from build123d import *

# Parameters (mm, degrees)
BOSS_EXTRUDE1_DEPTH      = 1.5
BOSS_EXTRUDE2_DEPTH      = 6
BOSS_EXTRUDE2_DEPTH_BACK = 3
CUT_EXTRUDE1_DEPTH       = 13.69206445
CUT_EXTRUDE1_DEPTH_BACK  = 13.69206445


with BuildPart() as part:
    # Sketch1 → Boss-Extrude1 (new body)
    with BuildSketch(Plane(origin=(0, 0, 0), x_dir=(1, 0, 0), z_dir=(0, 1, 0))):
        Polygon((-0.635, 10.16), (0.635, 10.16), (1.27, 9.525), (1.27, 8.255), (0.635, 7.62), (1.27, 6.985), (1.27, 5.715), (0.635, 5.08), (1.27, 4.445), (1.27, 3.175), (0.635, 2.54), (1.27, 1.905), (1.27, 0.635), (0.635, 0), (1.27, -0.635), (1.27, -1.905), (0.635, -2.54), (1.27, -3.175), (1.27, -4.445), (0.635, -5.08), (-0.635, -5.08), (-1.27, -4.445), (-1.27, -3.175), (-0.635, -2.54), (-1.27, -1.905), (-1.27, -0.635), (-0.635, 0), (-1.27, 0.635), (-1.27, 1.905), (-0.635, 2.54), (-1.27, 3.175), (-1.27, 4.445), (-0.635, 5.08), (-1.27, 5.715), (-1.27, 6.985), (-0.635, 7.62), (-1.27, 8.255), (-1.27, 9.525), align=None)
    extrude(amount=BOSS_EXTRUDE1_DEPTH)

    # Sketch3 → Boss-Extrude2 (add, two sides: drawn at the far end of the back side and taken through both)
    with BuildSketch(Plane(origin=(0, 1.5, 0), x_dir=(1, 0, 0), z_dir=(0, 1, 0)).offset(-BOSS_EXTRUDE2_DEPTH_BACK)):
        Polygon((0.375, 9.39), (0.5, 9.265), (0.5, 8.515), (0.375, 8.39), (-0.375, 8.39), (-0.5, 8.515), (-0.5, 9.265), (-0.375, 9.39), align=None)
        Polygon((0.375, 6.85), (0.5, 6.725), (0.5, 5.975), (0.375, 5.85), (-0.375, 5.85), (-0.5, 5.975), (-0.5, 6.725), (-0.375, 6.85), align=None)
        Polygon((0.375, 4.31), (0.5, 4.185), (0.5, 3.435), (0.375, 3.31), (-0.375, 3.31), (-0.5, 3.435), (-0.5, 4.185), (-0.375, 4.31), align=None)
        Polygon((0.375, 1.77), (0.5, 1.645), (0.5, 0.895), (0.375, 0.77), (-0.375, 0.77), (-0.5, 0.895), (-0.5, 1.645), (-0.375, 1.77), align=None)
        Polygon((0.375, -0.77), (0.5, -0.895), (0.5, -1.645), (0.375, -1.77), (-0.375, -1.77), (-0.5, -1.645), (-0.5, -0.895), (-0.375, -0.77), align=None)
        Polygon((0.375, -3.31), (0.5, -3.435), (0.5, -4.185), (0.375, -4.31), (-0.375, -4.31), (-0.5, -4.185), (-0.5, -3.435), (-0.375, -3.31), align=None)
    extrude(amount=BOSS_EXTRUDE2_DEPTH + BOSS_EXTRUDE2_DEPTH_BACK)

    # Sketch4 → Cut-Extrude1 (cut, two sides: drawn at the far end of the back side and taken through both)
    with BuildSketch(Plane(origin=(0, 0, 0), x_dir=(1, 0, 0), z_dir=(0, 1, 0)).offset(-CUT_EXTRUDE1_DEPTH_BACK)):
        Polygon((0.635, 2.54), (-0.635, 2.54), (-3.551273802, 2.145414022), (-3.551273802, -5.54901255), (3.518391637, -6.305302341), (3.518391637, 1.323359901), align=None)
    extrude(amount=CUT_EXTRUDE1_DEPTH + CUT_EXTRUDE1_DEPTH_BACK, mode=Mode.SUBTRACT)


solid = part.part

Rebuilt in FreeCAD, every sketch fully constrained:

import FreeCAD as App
import Part
import Sketcher
from FreeCAD import Vector
Q = App.Units.Quantity


def add_polygon(sketch, points):
    """Adds a closed chain of lines whose ends are joined by coincident constraints."""
    first, n = sketch.GeometryCount, len(points)
    for a, b in zip(points, points[1:] + points[:1]):
        sketch.addGeometry(Part.LineSegment(App.Vector(*a, 0), App.Vector(*b, 0)), False)
    for i in range(n):
        sketch.addConstraint(Sketcher.Constraint("Coincident", first + i, 2, first + (i + 1) % n, 1))

doc = App.newDocument("Part")
params = doc.addObject("Spreadsheet::Sheet", "Params")
for row, (alias, value) in enumerate([
    ("sketch1_width", "1.27 mm"),
    ("pad1_length", "1.5 mm"),
    ("sketch2_width", "0.75 mm"),
    ("pad2_length", "6 mm"),
    ("pad2_length2", "3 mm"),
    ("sketch3_width", "1.27 mm"),
], start=1):
    params.set(f"A{row}", alias)
    params.set(f"B{row}", "=" + value)
    params.setAlias(f"B{row}", alias)

body = doc.addObject("PartDesign::Body", "Body")

# Sketch on XZ plane
sketch1 = body.newObject("Sketcher::SketchObject", "Sketch")
sketch1.AttachmentSupport = (doc.getObject("XZ_Plane"), [""])
sketch1.MapMode = "FlatFace"
add_polygon(sketch1, [(0.6, -10.2), (-0.6, -10.2), (-1.3, -9.5), (-1.3, -8.3), (-0.6, -7.6), (-1.3, -7), (-1.3, -5.7), (-0.6, -5.1), (-1.3, -4.4), (-1.3, -3.2), (-0.6, -2.5), (-1.3, -1.9), (-1.3, -0.6), (-0.6, 0), (-1.3, 0.6), (-1.3, 1.9), (-0.6, 2.5), (-1.3, 3.2), (-1.3, 4.4), (-0.6, 5.1), (0.6, 5.1), (1.3, 4.4), (1.3, 3.2), (0.6, 2.5), (1.3, 1.9), (1.3, 0.6), (0.6, 0), (1.3, -0.6), (1.3, -1.9), (0.6, -2.5), (1.3, -3.2), (1.3, -4.4), (0.6, -5.1), (1.3, -5.7), (1.3, -7), (0.6, -7.6), (1.3, -8.3), (1.3, -9.5)])  # lines 0-37
sketch1.addConstraint([
    Sketcher.Constraint("Horizontal", 0),
    Sketcher.Constraint("Vertical", 2),
    Sketcher.Constraint("Vertical", 5),
    Sketcher.Constraint("Vertical", 8),
    Sketcher.Constraint("Vertical", 11),
    Sketcher.Constraint("Vertical", 14),
    Sketcher.Constraint("Vertical", 17),
    Sketcher.Constraint("Horizontal", 19),
    Sketcher.Constraint("Vertical", 21),
    Sketcher.Constraint("Vertical", 24),
    Sketcher.Constraint("Vertical", 27),
    Sketcher.Constraint("Vertical", 30),
    Sketcher.Constraint("Vertical", 33),
    Sketcher.Constraint("Vertical", 36),
    Sketcher.Constraint("Symmetric", 6, 2, 19, 2, -1, 1),
    Sketcher.Constraint("Symmetric", 7, 2, 20, 2, -1, 1),
    Sketcher.Constraint("Symmetric", 9, 2, 22, 2, -1, 1),
    Sketcher.Constraint("Symmetric", 10, 2, 23, 2, -1, 1),
    Sketcher.Constraint("Symmetric", 12, 2, 25, 2, -1, 1),
    Sketcher.Constraint("Symmetric", 13, 2, 26, 2, -1, 1),
    Sketcher.Constraint("Symmetric", 15, 2, 28, 2, -1, 1),
    Sketcher.Constraint("Symmetric", 16, 2, 29, 2, -1, 1),
    Sketcher.Constraint("Symmetric", 18, 2, 31, 2, -1, 1),
    Sketcher.Constraint("Symmetric", 17, 2, 20, 2, -2),
    Sketcher.Constraint("Symmetric", 15, 2, 22, 2, -2),
    Sketcher.Constraint("Symmetric", 14, 2, 23, 2, -2),
    Sketcher.Constraint("Symmetric", 5, 2, 32, 2, -2),
    Sketcher.Constraint("Symmetric", 3, 2, 34, 2, -2),
    Sketcher.Constraint("Symmetric", 2, 2, 35, 2, -2),
    Sketcher.Constraint("PointOnObject", 12, 2, -1),
    Sketcher.Constraint("Perpendicular", 1, 3),
    Sketcher.Constraint("Perpendicular", 3, 4),
    Sketcher.Constraint("Perpendicular", 4, 6),
    Sketcher.Constraint("Perpendicular", 6, 7),
    Sketcher.Constraint("Perpendicular", 7, 9),
    Sketcher.Constraint("Perpendicular", 9, 10),
    Sketcher.Constraint("Perpendicular", 10, 12),
    Sketcher.Constraint("Perpendicular", 12, 13),
    Sketcher.Constraint("Perpendicular", 13, 15),
    Sketcher.Constraint("Perpendicular", 15, 16),
    Sketcher.Constraint("Perpendicular", 16, 18),
    Sketcher.Constraint("Perpendicular", 20, 22),
    Sketcher.Constraint("Perpendicular", 23, 25),
    Sketcher.Constraint("Perpendicular", 26, 28),
    Sketcher.Constraint("Perpendicular", 29, 31),
    Sketcher.Constraint("Perpendicular", 32, 34),
    Sketcher.Constraint("Perpendicular", 35, 37),
    Sketcher.Constraint("Horizontal", 1, 2, 36, 2),
    Sketcher.Constraint("Vertical", 0, 2, 3, 2),
    Sketcher.Constraint("Vertical", 2, 2, 4, 2),
    Sketcher.Constraint("Vertical", 3, 2, 6, 2),
    Sketcher.Constraint("Vertical", 5, 2, 7, 2),
    Sketcher.Constraint("Vertical", 6, 2, 9, 2),
    Sketcher.Constraint("Vertical", 8, 2, 10, 2),
    Sketcher.Constraint("Vertical", 9, 2, 12, 2),
    Sketcher.Constraint("Equal", 19, 2),
    Sketcher.Constraint("Equal", 2, 5),
    Sketcher.Constraint("Equal", 5, 8),
    Sketcher.Constraint("Equal", 8, 11),
    Sketcher.Constraint("DistanceX", 0, 2, 0, 1, Q("1.27 mm")),
    Sketcher.Constraint("DistanceY", 0, 2, -1, 1, Q("10.16 mm")),
])
sketch1.setExpression("Constraints[97]", "Params.sketch1_width")
pad1 = body.newObject("PartDesign::Pad", "Pad")
pad1.Profile = sketch1
pad1.setExpression("Length", "Params.pad1_length")
pad1.Reversed = True

# Sketch on XZ plane
sketch2 = body.newObject("Sketcher::SketchObject", "Sketch001")
sketch2.AttachmentSupport = (doc.getObject("XZ_Plane"), [""])
sketch2.MapMode = "FlatFace"
sketch2.AttachmentOffset = App.Placement(Vector(0, 0, -1.5), App.Rotation())
add_polygon(sketch2, [(0.5, -9.27), (0.38, -9.39), (-0.38, -9.39), (-0.5, -9.27), (-0.5, -8.52), (-0.38, -8.39), (0.38, -8.39), (0.5, -8.52)])  # lines 0-7
add_polygon(sketch2, [(0.5, -6.72), (0.38, -6.85), (-0.38, -6.85), (-0.5, -6.72), (-0.5, -5.97), (-0.38, -5.85), (0.38, -5.85), (0.5, -5.97)])  # lines 8-15
add_polygon(sketch2, [(0.5, -4.18), (0.38, -4.31), (-0.38, -4.31), (-0.5, -4.18), (-0.5, -3.44), (-0.38, -3.31), (0.38, -3.31), (0.5, -3.44)])  # lines 16-23
add_polygon(sketch2, [(0.5, -1.65), (0.38, -1.77), (-0.38, -1.77), (-0.5, -1.65), (-0.5, -0.9), (-0.38, -0.77), (0.38, -0.77), (0.5, -0.9)])  # lines 24-31
add_polygon(sketch2, [(0.5, 0.9), (0.38, 0.77), (-0.38, 0.77), (-0.5, 0.9), (-0.5, 1.65), (-0.38, 1.77), (0.38, 1.77), (0.5, 1.65)])  # lines 32-39
add_polygon(sketch2, [(0.5, 3.44), (0.38, 3.31), (-0.38, 3.31), (-0.5, 3.44), (-0.5, 4.18), (-0.38, 4.31), (0.38, 4.31), (0.5, 4.18)])  # lines 40-47
sketch2.addConstraint([
    Sketcher.Constraint("Horizontal", 1),
    Sketcher.Constraint("Vertical", 3),
    Sketcher.Constraint("Horizontal", 5),
    Sketcher.Constraint("Vertical", 7),
    Sketcher.Constraint("Horizontal", 9),
    Sketcher.Constraint("Vertical", 11),
    Sketcher.Constraint("Horizontal", 13),
    Sketcher.Constraint("Vertical", 15),
    Sketcher.Constraint("Horizontal", 17),
    Sketcher.Constraint("Vertical", 19),
    Sketcher.Constraint("Horizontal", 21),
    Sketcher.Constraint("Vertical", 23),
    Sketcher.Constraint("Horizontal", 25),
    Sketcher.Constraint("Vertical", 27),
    Sketcher.Constraint("Horizontal", 29),
    Sketcher.Constraint("Vertical", 31),
    Sketcher.Constraint("Horizontal", 33),
    Sketcher.Constraint("Vertical", 35),
    Sketcher.Constraint("Horizontal", 37),
    Sketcher.Constraint("Vertical", 39),
    Sketcher.Constraint("Horizontal", 41),
    Sketcher.Constraint("Vertical", 43),
    Sketcher.Constraint("Horizontal", 45),
    Sketcher.Constraint("Vertical", 47),
    Sketcher.Constraint("Symmetric", 28, 2, 32, 2, -1, 1),
    Sketcher.Constraint("Symmetric", 30, 2, 34, 2, -1, 1),
    Sketcher.Constraint("Symmetric", 24, 2, 36, 2, -1, 1),
    Sketcher.Constraint("Symmetric", 26, 2, 38, 2, -1, 1),
    Sketcher.Constraint("Symmetric", 20, 2, 40, 2, -1, 1),
    Sketcher.Constraint("Symmetric", 22, 2, 42, 2, -1, 1),
    Sketcher.Constraint("Symmetric", 16, 2, 44, 2, -1, 1),
    Sketcher.Constraint("Symmetric", 18, 2, 46, 2, -1, 1),
    Sketcher.Constraint("Symmetric", 3, 2, 6, 2, -2),
    Sketcher.Constraint("Symmetric", 11, 2, 14, 2, -2),
    Sketcher.Constraint("Symmetric", 19, 2, 22, 2, -2),
    Sketcher.Constraint("Symmetric", 27, 2, 30, 2, -2),
    Sketcher.Constraint("Perpendicular", 0, 2),
    Sketcher.Constraint("Perpendicular", 2, 4),
    Sketcher.Constraint("Perpendicular", 4, 6),
    Sketcher.Constraint("Perpendicular", 6, 8),
    Sketcher.Constraint("Perpendicular", 8, 10),
    Sketcher.Constraint("Perpendicular", 10, 12),
    Sketcher.Constraint("Perpendicular", 12, 14),
    Sketcher.Constraint("Perpendicular", 14, 16),
    Sketcher.Constraint("Perpendicular", 16, 18),
    Sketcher.Constraint("Perpendicular", 18, 20),
    Sketcher.Constraint("Perpendicular", 20, 22),
    Sketcher.Constraint("Perpendicular", 22, 24),
    Sketcher.Constraint("Perpendicular", 24, 26),
    Sketcher.Constraint("Perpendicular", 26, 28),
    Sketcher.Constraint("Perpendicular", 28, 30),
    Sketcher.Constraint("Perpendicular", 30, 32),
    Sketcher.Constraint("Perpendicular", 32, 34),
    Sketcher.Constraint("Perpendicular", 34, 36),
    Sketcher.Constraint("Perpendicular", 36, 38),
    Sketcher.Constraint("Perpendicular", 38, 40),
    Sketcher.Constraint("Perpendicular", 40, 42),
    Sketcher.Constraint("Perpendicular", 42, 44),
    Sketcher.Constraint("Perpendicular", 44, 46),
    Sketcher.Constraint("Horizontal", 2, 2, 7, 2),
    Sketcher.Constraint("Horizontal", 10, 2, 15, 2),
    Sketcher.Constraint("Horizontal", 18, 2, 23, 2),
    Sketcher.Constraint("Horizontal", 26, 2, 31, 2),
    Sketcher.Constraint("Vertical", 1, 2, 4, 2),
    Sketcher.Constraint("Vertical", 0, 2, 5, 2),
    Sketcher.Constraint("Vertical", 5, 2, 8, 2),
    Sketcher.Constraint("Vertical", 3, 2, 10, 2),
    Sketcher.Constraint("Vertical", 9, 2, 12, 2),
    Sketcher.Constraint("Vertical", 13, 2, 16, 2),
    Sketcher.Constraint("Vertical", 11, 2, 18, 2),
    Sketcher.Constraint("Vertical", 17, 2, 20, 2),
    Sketcher.Constraint("Vertical", 21, 2, 24, 2),
    Sketcher.Constraint("Vertical", 19, 2, 26, 2),
    Sketcher.Constraint("Vertical", 25, 2, 28, 2),
    Sketcher.Constraint("Equal", 45, 3),
    Sketcher.Constraint("Equal", 7, 11),
    Sketcher.Constraint("Equal", 15, 19),
    Sketcher.Constraint("Equal", 23, 27),
    Sketcher.Constraint("DistanceY", 1, 2, 4, 2, Q("1 mm")),
    Sketcher.Constraint("DistanceX", 1, 2, 1, 1, Q("0.75 mm")),
    Sketcher.Constraint("DistanceY", 0, 2, -1, 1, Q("9.39 mm")),
    Sketcher.Constraint("DistanceY", 8, 2, -1, 1, Q("6.85 mm")),
    Sketcher.Constraint("DistanceY", 16, 2, -1, 1, Q("4.31 mm")),
    Sketcher.Constraint("DistanceY", 24, 2, -1, 1, Q("1.77 mm")),
])
sketch2.setExpression("Constraints[127]", "Params.sketch2_width")
pad2 = body.newObject("PartDesign::Pad", "Pad001")
pad2.Profile = sketch2
pad2.Type = "TwoLengths"
pad2.setExpression("Length", "Params.pad2_length")
pad2.setExpression("Length2", "Params.pad2_length2")
pad2.Reversed = True

# Sketch on XZ plane
sketch3 = body.newObject("Sketcher::SketchObject", "Sketch002")
sketch3.AttachmentSupport = (doc.getObject("XZ_Plane"), [""])
sketch3.MapMode = "FlatFace"
add_polygon(sketch3, [(0.6, -2.5), (-0.6, -2.5), (-3.6, -2.1), (-3.6, 5.5), (3.5, 6.3), (3.5, -1.3)])  # lines 0-5
sketch3.addConstraint([
    Sketcher.Constraint("Horizontal", 0),
    Sketcher.Constraint("Vertical", 2),
    Sketcher.Constraint("Vertical", 4),
    Sketcher.Constraint("DistanceX", 0, 2, 0, 1, Q("1.27 mm")),
    Sketcher.Constraint("DistanceY", 0, 2, -1, 1, Q("2.54 mm")),
    Sketcher.Constraint("DistanceX", 0, 2, -1, 1, Q("0.635 mm")),
    Sketcher.Constraint("DistanceY", 2, 1, 2, 2, Q("7.694427 mm")),
    Sketcher.Constraint("DistanceY", 4, 2, 4, 1, Q("7.628662 mm")),
    Sketcher.Constraint("DistanceX", -1, 1, 3, 2, Q("3.518392 mm")),
    Sketcher.Constraint("DistanceY", 4, 2, -1, 1, Q("1.32336 mm")),
    Sketcher.Constraint("DistanceY", 2, 2, 3, 2, Q("0.75629 mm")),
    Sketcher.Constraint("Distance", 1, Q("2.942847 mm")),
])
sketch3.setExpression("Constraints[9]", "Params.sketch3_width")
pocket1 = body.newObject("PartDesign::Pocket", "Pocket")
pocket1.Profile = sketch3
pocket1.Type = "ThroughAll"
pocket1.Midplane = True

doc.recompute()
